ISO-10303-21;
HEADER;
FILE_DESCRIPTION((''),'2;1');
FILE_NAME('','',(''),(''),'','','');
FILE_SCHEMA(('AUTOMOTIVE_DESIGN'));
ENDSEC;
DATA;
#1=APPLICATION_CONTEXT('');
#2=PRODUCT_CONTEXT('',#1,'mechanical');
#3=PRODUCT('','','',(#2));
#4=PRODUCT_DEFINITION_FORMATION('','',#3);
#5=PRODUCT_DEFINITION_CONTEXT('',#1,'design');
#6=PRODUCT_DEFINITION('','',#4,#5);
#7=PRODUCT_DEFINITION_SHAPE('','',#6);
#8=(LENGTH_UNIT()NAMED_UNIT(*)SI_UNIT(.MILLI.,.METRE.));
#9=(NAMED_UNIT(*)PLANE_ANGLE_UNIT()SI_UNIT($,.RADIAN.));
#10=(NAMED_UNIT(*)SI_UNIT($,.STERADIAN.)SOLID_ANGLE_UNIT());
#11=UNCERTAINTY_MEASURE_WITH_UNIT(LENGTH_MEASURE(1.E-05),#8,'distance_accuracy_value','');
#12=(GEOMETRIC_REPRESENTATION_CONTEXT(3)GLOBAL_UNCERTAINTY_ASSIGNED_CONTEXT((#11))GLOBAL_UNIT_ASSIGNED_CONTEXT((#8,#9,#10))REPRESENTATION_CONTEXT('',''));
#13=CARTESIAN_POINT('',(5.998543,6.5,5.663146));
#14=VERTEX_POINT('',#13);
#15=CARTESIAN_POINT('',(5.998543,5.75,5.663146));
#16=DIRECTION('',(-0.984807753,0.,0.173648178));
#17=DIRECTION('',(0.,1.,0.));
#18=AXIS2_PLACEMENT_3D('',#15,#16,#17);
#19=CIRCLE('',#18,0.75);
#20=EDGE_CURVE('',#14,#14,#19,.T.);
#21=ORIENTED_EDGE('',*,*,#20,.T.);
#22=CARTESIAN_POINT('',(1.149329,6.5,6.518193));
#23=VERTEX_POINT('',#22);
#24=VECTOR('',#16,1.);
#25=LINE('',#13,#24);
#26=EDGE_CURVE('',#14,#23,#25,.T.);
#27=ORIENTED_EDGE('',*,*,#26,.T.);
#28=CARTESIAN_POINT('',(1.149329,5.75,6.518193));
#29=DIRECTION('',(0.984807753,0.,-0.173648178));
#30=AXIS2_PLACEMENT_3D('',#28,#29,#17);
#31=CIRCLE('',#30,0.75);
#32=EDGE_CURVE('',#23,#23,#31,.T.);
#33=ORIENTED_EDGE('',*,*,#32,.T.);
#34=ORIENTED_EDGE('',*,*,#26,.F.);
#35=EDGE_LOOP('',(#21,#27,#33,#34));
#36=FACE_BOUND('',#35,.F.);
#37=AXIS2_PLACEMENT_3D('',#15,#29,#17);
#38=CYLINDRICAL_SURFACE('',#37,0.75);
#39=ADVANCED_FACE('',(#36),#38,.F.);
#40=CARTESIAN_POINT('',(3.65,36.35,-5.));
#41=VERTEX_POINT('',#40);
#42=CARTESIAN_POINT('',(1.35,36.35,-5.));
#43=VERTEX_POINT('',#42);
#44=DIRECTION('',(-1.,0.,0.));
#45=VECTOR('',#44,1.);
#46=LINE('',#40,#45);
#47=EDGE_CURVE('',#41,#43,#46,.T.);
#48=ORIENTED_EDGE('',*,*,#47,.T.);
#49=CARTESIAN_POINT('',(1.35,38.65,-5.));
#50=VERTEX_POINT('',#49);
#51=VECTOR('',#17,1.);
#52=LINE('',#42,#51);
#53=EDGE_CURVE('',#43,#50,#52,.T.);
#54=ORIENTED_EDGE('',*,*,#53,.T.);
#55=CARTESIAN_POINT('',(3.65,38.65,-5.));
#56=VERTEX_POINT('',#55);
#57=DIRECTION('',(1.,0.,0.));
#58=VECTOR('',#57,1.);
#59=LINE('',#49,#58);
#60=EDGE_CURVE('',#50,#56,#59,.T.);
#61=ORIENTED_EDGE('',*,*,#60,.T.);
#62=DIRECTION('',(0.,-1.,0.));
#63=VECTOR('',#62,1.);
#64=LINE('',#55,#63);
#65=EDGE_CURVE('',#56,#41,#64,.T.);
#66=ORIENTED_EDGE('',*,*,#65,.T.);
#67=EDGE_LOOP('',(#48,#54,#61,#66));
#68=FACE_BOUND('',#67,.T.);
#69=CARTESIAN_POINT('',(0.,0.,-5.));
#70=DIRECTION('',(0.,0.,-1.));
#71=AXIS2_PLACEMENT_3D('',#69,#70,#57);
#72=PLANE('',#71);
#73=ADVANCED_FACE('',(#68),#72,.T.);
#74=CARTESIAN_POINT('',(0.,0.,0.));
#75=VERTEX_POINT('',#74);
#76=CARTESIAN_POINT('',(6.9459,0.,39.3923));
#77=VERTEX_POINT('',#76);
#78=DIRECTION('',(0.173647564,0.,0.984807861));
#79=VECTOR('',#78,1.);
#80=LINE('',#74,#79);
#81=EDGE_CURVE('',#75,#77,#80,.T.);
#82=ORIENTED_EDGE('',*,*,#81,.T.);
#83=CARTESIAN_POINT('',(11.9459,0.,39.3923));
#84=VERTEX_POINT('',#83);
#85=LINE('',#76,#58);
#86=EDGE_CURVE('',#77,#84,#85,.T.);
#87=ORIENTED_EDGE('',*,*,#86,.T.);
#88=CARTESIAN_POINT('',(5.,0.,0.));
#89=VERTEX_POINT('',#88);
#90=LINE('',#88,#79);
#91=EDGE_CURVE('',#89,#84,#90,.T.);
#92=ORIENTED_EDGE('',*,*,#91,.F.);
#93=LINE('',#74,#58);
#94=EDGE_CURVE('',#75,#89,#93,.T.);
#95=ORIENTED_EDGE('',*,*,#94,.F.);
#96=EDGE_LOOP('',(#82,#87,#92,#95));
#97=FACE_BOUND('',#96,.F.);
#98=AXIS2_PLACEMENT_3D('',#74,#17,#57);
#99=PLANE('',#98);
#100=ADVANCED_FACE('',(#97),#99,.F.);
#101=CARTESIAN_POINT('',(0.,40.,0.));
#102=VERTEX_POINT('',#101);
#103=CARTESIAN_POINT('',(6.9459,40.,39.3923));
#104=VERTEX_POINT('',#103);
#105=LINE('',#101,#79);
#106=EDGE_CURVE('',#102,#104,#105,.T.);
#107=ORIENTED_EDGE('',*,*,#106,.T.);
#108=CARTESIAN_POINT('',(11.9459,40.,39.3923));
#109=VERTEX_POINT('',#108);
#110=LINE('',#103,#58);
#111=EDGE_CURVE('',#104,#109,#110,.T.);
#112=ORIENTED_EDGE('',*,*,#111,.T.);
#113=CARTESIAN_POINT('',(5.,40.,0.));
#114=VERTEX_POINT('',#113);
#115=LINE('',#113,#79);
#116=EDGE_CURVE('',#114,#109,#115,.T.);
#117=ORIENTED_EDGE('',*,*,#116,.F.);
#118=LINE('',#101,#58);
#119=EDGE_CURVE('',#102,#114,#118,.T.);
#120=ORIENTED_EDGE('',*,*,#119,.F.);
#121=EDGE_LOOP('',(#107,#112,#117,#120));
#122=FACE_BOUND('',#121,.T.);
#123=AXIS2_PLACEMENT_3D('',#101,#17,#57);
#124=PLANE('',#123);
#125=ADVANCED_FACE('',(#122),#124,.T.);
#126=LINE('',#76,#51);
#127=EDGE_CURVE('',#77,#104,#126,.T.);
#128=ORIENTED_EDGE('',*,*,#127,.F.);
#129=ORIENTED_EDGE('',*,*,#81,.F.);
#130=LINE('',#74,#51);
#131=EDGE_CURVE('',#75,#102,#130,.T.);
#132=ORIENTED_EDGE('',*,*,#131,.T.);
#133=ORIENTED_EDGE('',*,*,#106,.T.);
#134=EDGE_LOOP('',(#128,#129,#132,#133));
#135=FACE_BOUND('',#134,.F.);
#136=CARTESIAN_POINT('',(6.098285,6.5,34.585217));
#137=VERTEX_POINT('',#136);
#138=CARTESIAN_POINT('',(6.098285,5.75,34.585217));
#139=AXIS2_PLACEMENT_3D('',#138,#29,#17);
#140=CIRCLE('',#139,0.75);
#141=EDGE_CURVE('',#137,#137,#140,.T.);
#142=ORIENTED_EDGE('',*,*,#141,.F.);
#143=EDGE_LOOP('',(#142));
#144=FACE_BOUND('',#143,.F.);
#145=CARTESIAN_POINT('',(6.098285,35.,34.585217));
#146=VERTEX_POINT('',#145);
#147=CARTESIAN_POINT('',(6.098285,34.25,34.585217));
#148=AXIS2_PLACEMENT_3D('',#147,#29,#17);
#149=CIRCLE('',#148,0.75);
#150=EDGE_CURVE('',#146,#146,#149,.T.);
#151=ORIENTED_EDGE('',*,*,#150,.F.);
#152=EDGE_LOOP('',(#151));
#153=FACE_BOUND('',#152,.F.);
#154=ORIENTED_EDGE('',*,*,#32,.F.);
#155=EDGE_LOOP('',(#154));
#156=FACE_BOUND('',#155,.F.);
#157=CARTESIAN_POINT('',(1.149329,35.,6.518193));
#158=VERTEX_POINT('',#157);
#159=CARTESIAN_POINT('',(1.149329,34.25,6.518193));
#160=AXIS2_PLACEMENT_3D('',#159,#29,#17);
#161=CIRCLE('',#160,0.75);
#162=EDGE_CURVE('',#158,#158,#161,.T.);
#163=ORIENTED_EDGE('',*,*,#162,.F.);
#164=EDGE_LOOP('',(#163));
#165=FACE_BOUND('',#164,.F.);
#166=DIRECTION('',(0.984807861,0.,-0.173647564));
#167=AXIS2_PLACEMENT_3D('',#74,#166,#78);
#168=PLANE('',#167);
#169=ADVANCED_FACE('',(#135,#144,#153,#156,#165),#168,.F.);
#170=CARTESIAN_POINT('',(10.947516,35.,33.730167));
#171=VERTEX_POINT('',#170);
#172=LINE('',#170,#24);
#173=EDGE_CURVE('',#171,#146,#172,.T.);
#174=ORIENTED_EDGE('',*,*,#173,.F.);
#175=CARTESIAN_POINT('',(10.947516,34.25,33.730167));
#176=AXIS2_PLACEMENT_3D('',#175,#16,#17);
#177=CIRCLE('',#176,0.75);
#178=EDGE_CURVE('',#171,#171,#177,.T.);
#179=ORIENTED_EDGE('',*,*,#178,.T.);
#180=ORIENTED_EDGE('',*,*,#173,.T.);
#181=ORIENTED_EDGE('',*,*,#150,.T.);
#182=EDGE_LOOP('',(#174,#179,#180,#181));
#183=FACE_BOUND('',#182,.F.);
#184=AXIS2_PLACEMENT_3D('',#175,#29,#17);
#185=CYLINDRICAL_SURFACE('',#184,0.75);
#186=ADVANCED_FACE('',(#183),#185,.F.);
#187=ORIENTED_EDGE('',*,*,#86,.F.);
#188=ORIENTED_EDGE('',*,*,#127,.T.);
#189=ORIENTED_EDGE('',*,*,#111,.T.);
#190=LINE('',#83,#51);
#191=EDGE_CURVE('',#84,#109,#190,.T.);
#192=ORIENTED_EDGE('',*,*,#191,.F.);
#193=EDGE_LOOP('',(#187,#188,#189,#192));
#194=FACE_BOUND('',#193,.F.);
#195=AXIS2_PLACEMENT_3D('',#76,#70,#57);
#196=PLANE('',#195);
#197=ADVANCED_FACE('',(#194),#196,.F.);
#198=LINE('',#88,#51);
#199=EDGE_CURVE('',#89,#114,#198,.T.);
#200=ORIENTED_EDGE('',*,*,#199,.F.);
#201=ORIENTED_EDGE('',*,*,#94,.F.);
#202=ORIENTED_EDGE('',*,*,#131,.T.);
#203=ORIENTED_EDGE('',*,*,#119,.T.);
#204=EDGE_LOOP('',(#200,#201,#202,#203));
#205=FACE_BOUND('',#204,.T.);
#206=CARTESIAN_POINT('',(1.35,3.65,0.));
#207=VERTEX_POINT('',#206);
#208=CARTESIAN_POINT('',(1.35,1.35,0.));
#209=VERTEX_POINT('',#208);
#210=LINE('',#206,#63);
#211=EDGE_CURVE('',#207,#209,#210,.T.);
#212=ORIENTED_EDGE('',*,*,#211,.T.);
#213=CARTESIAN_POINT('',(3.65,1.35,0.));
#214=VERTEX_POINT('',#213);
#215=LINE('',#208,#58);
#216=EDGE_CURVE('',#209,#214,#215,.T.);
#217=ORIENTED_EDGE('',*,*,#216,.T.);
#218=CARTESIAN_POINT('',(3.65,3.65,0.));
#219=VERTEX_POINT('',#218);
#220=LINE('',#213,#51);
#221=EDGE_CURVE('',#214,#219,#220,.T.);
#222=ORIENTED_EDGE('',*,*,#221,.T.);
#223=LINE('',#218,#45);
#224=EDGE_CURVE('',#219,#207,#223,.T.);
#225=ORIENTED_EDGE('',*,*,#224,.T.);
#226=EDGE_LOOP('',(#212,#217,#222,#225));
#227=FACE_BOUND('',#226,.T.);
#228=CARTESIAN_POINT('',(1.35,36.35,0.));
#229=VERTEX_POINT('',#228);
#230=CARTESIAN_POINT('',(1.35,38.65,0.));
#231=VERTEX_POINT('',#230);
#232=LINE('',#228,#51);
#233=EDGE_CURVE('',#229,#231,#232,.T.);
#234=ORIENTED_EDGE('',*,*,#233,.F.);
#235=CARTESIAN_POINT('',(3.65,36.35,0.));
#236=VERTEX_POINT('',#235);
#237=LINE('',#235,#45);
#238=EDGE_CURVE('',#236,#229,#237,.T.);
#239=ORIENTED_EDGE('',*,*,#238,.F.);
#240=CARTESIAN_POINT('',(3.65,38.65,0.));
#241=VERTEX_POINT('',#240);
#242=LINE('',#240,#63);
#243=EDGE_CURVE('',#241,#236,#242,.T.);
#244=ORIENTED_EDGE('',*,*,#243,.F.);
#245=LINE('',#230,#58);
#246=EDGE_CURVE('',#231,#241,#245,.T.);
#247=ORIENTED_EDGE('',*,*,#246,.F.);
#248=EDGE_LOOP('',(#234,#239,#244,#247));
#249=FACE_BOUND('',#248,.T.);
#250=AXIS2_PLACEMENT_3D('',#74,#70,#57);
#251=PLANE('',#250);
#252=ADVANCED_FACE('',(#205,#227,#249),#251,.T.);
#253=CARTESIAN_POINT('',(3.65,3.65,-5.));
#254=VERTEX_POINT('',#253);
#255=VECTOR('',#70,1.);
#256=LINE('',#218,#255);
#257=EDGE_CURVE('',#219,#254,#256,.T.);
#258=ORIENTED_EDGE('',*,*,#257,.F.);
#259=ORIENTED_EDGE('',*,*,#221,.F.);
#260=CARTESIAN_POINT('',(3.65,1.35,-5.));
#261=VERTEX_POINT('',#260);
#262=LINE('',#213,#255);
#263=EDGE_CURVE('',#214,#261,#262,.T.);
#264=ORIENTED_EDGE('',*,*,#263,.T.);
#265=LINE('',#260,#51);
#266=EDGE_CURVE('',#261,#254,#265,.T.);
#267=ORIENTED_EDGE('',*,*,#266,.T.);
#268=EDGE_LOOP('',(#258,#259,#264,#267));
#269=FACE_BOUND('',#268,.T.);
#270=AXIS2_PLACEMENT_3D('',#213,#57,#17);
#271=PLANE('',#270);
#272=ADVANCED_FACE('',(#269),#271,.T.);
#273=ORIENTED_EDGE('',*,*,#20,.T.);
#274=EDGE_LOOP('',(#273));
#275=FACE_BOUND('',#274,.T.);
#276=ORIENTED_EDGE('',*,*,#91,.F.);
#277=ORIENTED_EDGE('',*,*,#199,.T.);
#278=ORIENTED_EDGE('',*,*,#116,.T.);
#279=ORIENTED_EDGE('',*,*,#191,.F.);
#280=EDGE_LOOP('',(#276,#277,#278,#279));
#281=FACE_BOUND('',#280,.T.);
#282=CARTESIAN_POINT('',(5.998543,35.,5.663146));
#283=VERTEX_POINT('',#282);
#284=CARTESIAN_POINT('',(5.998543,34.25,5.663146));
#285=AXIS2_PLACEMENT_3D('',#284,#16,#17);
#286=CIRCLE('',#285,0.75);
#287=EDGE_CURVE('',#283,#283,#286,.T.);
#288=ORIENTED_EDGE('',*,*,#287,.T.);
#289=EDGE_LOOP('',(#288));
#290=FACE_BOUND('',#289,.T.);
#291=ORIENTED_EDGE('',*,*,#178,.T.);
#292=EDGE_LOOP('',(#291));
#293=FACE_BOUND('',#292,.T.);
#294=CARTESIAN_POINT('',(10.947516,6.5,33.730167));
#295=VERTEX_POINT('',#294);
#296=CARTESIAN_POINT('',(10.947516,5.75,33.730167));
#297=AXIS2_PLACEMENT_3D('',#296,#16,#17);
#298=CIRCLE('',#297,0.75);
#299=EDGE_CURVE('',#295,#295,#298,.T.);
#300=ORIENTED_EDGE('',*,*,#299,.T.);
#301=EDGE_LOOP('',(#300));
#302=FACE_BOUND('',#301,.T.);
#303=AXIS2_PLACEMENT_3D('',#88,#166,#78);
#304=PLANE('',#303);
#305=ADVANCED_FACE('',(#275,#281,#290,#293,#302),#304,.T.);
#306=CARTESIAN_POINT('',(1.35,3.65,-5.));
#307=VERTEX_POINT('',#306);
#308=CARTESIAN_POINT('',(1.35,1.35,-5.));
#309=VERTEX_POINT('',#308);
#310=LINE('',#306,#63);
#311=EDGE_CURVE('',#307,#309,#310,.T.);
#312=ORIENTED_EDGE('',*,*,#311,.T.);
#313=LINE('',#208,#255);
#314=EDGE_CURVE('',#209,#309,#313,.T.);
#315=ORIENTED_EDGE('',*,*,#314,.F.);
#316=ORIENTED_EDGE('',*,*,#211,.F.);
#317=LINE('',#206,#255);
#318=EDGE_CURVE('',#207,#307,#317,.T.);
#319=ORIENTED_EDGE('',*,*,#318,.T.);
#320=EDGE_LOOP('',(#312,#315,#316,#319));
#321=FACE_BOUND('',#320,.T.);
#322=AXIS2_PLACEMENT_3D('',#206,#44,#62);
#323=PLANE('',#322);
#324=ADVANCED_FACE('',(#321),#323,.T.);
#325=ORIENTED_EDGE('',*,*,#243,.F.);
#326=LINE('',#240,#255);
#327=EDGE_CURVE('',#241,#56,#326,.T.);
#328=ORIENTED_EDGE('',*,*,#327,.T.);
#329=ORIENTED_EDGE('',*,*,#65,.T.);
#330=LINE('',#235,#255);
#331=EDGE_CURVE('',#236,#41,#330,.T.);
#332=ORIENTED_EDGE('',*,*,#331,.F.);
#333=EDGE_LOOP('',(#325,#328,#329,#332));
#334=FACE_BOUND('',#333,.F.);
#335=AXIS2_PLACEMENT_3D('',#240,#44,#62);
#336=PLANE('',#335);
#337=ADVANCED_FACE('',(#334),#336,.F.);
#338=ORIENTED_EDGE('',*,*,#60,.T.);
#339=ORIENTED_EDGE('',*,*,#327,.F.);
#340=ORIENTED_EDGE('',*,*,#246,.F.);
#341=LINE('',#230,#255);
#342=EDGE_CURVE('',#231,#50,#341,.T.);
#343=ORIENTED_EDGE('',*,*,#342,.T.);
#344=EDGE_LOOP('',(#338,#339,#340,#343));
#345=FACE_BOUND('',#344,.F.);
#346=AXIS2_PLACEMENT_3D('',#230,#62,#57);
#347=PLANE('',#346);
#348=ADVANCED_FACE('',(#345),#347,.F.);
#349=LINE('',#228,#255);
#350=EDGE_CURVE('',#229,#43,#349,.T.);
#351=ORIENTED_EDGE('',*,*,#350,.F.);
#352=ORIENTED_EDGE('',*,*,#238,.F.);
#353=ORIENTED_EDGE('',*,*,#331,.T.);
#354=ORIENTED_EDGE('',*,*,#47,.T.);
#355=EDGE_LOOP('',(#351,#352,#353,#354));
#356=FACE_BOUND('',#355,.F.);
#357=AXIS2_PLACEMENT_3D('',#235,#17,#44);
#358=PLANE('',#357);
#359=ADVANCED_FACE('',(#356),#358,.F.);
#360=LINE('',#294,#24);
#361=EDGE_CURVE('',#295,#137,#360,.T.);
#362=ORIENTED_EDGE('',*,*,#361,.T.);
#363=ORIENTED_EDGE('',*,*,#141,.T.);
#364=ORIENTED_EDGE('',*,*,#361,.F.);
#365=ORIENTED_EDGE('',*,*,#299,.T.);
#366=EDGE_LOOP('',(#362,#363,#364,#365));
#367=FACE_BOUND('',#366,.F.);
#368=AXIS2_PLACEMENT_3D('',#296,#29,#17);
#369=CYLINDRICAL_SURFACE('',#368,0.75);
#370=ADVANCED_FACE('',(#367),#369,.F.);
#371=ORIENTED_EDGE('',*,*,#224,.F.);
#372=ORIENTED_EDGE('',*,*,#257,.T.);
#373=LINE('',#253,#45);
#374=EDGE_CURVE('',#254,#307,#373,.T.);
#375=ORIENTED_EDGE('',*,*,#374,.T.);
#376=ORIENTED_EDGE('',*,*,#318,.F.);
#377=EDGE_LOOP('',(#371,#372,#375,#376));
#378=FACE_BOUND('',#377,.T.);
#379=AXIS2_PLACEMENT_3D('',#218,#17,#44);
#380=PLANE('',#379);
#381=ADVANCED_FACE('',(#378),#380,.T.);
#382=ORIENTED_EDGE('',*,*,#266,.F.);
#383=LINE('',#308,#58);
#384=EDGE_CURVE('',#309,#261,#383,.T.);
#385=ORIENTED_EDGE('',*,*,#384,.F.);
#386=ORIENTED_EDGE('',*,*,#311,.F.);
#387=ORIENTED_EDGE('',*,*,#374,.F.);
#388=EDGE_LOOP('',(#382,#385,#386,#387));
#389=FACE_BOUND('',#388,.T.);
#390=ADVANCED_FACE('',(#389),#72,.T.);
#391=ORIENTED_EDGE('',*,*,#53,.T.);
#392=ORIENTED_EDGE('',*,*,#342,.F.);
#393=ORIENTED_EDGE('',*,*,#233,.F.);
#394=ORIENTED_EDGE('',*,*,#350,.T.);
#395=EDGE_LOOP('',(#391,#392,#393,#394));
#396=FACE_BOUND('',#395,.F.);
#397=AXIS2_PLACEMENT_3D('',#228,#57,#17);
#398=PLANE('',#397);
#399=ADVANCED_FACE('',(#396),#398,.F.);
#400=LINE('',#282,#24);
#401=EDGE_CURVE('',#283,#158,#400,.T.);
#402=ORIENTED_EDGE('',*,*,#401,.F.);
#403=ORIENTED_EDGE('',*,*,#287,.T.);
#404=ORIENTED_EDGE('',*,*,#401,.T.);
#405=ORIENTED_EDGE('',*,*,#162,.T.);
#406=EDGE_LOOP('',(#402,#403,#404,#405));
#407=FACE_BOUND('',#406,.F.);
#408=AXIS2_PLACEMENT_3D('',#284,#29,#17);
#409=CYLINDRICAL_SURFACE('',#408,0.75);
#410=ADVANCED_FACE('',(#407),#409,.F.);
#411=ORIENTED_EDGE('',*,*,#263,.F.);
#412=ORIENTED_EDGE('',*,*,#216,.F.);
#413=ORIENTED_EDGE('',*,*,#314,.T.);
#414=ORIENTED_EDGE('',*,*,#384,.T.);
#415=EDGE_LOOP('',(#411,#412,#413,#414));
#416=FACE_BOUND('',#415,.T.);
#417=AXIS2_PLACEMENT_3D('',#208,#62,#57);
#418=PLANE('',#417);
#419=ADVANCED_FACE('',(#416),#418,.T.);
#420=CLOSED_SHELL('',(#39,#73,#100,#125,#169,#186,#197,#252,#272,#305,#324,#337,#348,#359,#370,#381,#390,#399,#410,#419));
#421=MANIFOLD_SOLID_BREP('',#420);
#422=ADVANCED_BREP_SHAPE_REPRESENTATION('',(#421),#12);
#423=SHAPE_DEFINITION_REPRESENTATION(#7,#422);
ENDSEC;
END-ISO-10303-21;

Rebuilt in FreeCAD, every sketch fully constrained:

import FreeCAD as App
import Part
import Sketcher
from FreeCAD import Vector
Q = App.Units.Quantity


def add_polygon(sketch, points):
    """Adds a closed chain of lines whose ends are joined by coincident constraints."""
    first, n = sketch.GeometryCount, len(points)
    for a, b in zip(points, points[1:] + points[:1]):
        sketch.addGeometry(Part.LineSegment(App.Vector(*a, 0), App.Vector(*b, 0)), False)
    for i in range(n):
        sketch.addConstraint(Sketcher.Constraint("Coincident", first + i, 2, first + (i + 1) % n, 1))

doc = App.newDocument("Part")
params = doc.addObject("Spreadsheet::Sheet", "Params")
for row, (alias, value) in enumerate([
    ("sketch1_width", "5 mm"),
    ("sketch1_length", "40 mm"),
    ("pad1_length", "40 mm"),
    ("sketch2_width", "2.3 mm"),
    ("pad2_length", "5 mm"),
    ("sketch3_diameter", "1.5 mm"),
    ("pocket1_length", "7098 mm"),
], start=1):
    params.set(f"A{row}", alias)
    params.set(f"B{row}", "=" + value)
    params.setAlias(f"B{row}", alias)

body = doc.addObject("PartDesign::Body", "Body")

sketch1 = body.newObject("Sketcher::SketchObject", "Sketch")
sketch1.AttachmentSupport = (doc.getObject("XZ_Plane"), [""])
sketch1.MapMode = "FlatFace"
add_polygon(sketch1, [(5, 0), (0, 0), (6.9459, 39.3923), (11.9459, 39.3923)])
sketch1.addConstraint([
    Sketcher.Constraint("Horizontal", 0),
    Sketcher.Constraint("Horizontal", 2),
    Sketcher.Constraint("Coincident", 0, 2, -1, 1),
    Sketcher.Constraint("Parallel", 1, 3),
    Sketcher.Constraint("DistanceX", 0, 2, 0, 1, 5.0),
    Sketcher.Constraint("Angle", 1, Q("80 deg")),
    Sketcher.Constraint("Distance", 1, 40.0),
])
sketch1.setExpression("Constraints[8]", "Params.sketch1_width")
sketch1.setExpression("Constraints[10]", "Params.sketch1_length")
pad1 = body.newObject("PartDesign::Pad", "Pad")
pad1.Profile = sketch1
pad1.setExpression("Length", "Params.pad1_length")
pad1.Reversed = True

sketch2 = body.newObject("Sketcher::SketchObject", "Sketch001")
sketch2.AttachmentSupport = (doc.getObject("XY_Plane"), [""])
sketch2.MapMode = "FlatFace"
add_polygon(sketch2, [(3.65, 1.35), (1.35, 1.35), (1.35, 3.65), (3.65, 3.65)])
add_polygon(sketch2, [(1.35, 36.35), (1.35, 38.65), (3.65, 38.65), (3.65, 36.35)])
sketch2.addConstraint([
    Sketcher.Constraint("Horizontal", 0),
    Sketcher.Constraint("Vertical", 1),
    Sketcher.Constraint("Horizontal", 2),
    Sketcher.Constraint("Vertical", 3),
    Sketcher.Constraint("Vertical", 4),
    Sketcher.Constraint("Horizontal", 5),
    Sketcher.Constraint("Vertical", 6),
    Sketcher.Constraint("Horizontal", 7),
    Sketcher.Constraint("Vertical", 1, 2, 4, 2),
    Sketcher.Constraint("Vertical", 3, 2, 5, 2),
    Sketcher.Constraint("Equal", 7, 1),
    Sketcher.Constraint("Equal", 3, 4),
    Sketcher.Constraint("DistanceX", 0, 2, 0, 1, 2.3),
    Sketcher.Constraint("DistanceX", -1, 1, 0, 2, 1.35),
    Sketcher.Constraint("DistanceY", -1, 1, 0, 2, 1.35),
    Sketcher.Constraint("DistanceY", 1, 2, 4, 2, 35.0),
])
sketch2.setExpression("Constraints[20]", "Params.sketch2_width")
pad2 = body.newObject("PartDesign::Pad", "Pad001")
pad2.Profile = sketch2
pad2.setExpression("Length", "Params.pad2_length")
pad2.Reversed = True

sketch3 = body.newObject("Sketcher::SketchObject", "Sketch002")
sketch3.Placement = App.Placement(Vector(4.8492, 0, -0.8551), App.Rotation(Vector(0, 1, 0), Vector(0.173648178, 0, 0.984807753), Vector(0.984807753, 0, -0.173648178), "ZXY"))
sketch3.addGeometry([
    Part.Circle(Vector(34.25, 35.1188, 0), Vector(0, 0, 1), 0.75),
    Part.Circle(Vector(34.25, 6.6188, 0), Vector(0, 0, 1), 0.75),
    Part.Circle(Vector(5.75, 6.6188, 0), Vector(0, 0, 1), 0.75),
    Part.Circle(Vector(5.75, 35.1188, 0), Vector(0, 0, 1), 0.75),
], False)
sketch3.addConstraint([
    Sketcher.Constraint("Equal", 0, 1),
    Sketcher.Constraint("Equal", 1, 2),
    Sketcher.Constraint("Equal", 2, 3),
    Sketcher.Constraint("Horizontal", 1, 3, 2, 3),
    Sketcher.Constraint("Horizontal", 0, 3, 3, 3),
    Sketcher.Constraint("Vertical", 0, 3, 1, 3),
    Sketcher.Constraint("Vertical", 2, 3, 3, 3),
    Sketcher.Constraint("Diameter", 0, 1.5),
    Sketcher.Constraint("DistanceY", 1, 3, 0, 3, 28.5),
    Sketcher.Constraint("DistanceX", 2, 3, 1, 3, 28.5),
    Sketcher.Constraint("DistanceX", -1, 1, 0, 3, 34.25),
    Sketcher.Constraint("DistanceY", -1, 1, 0, 3, 35.1188),
])
sketch3.setExpression("Constraints[7]", "Params.sketch3_diameter")
pocket1 = body.newObject("PartDesign::Pocket", "Pocket")
pocket1.Profile = sketch3
pocket1.setExpression("Length", "Params.pocket1_length")

doc.recompute()
